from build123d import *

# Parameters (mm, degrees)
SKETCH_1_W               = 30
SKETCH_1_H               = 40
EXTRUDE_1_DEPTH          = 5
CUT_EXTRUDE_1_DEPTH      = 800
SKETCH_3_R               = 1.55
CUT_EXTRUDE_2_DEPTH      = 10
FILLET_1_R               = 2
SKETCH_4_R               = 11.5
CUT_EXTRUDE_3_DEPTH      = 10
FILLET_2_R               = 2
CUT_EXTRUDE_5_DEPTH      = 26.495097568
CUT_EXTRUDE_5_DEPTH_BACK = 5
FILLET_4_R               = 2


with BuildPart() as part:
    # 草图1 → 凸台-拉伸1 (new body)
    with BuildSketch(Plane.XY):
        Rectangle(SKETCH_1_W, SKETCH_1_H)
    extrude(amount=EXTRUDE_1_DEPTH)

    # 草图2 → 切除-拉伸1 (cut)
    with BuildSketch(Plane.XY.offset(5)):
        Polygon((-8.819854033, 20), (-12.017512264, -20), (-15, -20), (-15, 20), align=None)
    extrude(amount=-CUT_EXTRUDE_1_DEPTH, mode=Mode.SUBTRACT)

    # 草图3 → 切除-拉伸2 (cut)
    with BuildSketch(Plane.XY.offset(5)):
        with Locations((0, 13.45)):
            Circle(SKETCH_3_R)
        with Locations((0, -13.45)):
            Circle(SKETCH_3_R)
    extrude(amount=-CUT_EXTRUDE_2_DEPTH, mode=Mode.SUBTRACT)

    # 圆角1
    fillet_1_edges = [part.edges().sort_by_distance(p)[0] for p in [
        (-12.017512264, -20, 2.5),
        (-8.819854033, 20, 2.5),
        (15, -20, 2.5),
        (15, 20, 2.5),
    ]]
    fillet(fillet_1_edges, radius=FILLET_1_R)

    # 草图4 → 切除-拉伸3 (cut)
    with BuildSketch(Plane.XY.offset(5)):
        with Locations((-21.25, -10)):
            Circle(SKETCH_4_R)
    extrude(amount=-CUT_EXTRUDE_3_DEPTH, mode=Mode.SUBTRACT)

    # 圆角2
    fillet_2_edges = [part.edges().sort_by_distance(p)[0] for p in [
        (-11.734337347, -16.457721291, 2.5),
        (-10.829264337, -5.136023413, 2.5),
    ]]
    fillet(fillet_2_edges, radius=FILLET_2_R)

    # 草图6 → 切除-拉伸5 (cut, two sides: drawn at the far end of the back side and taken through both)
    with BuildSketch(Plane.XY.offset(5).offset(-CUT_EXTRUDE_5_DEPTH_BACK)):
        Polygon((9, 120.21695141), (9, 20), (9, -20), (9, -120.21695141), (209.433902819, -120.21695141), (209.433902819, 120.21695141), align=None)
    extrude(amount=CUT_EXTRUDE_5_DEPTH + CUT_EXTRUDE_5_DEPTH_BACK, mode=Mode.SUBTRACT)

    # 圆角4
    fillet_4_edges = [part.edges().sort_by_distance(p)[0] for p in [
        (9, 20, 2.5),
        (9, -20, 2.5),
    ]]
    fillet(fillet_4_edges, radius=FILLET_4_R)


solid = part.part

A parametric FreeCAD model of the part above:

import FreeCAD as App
import Part
import Sketcher
from FreeCAD import Vector
Q = App.Units.Quantity


def edges_at(feature, points):
    """Names of the edges that pass closest to the given points."""
    edges = feature.Shape.Edges
    near = lambda p: min(range(len(edges)), key=lambda i: edges[i].distToShape(Part.Vertex(*p))[0])
    return sorted({f"Edge{near(p) + 1}" for p in points})


def add_polygon(sketch, points):
    """Adds a closed chain of lines whose ends are joined by coincident constraints."""
    first, n = sketch.GeometryCount, len(points)
    for a, b in zip(points, points[1:] + points[:1]):
        sketch.addGeometry(Part.LineSegment(App.Vector(*a, 0), App.Vector(*b, 0)), False)
    for i in range(n):
        sketch.addConstraint(Sketcher.Constraint("Coincident", first + i, 2, first + (i + 1) % n, 1))

doc = App.newDocument("Part")
body = doc.addObject("PartDesign::Body", "Body")

# Sketch on XY plane
sketch1 = body.newObject("Sketcher::SketchObject", "Sketch")
sketch1.AttachmentSupport = (doc.getObject("XY_Plane"), [""])
sketch1.MapMode = "FlatFace"
add_polygon(sketch1, [(-15, 20), (-15, -20), (15, -20), (15, 20)])  # lines 0-3
sketch1.addConstraint([
    Sketcher.Constraint("Vertical", 0),
    Sketcher.Constraint("Horizontal", 1),
    Sketcher.Constraint("Vertical", 2),
    Sketcher.Constraint("Horizontal", 3),
    Sketcher.Constraint("Symmetric", 0, 2, 2, 2, -1, 1),
    Sketcher.Constraint("DistanceX", 1, 1, 1, 2, Q("30 mm")),
    Sketcher.Constraint("DistanceY", 0, 2, 0, 1, Q("40 mm")),
])
pad1 = body.newObject("PartDesign::Pad", "Pad")
pad1.Profile = sketch1
pad1.Length = 5

# Sketch on XY plane
sketch2 = body.newObject("Sketcher::SketchObject", "Sketch001")
sketch2.AttachmentSupport = (doc.getObject("XY_Plane"), [""])
sketch2.MapMode = "FlatFace"
sketch2.AttachmentOffset = App.Placement(Vector(0, 0, 5), App.Rotation())
add_polygon(sketch2, [(-12.017512, -20), (-8.819854, 20), (-15, 20), (-15, -20)])  # lines 0-3
sketch2.addConstraint([
    Sketcher.Constraint("Horizontal", 1),
    Sketcher.Constraint("Vertical", 2),
    Sketcher.Constraint("Horizontal", 3),
    Sketcher.Constraint("DistanceY", 2, 2, 2, 1, Q("40 mm")),
    Sketcher.Constraint("DistanceY", -1, 1, 0, 2, Q("20 mm")),
    Sketcher.Constraint("DistanceX", 1, 2, -1, 1, Q("15 mm")),
    Sketcher.Constraint("Distance", 0, Q("40.127609 mm")),
    Sketcher.Constraint("DistanceX", 1, 2, 1, 1, Q("6.180146 mm")),
])
pocket1 = body.newObject("PartDesign::Pocket", "Pocket")
pocket1.Profile = sketch2
pocket1.Length = 800

# Sketch on XY plane
sketch3 = body.newObject("Sketcher::SketchObject", "Sketch002")
sketch3.AttachmentSupport = (doc.getObject("XY_Plane"), [""])
sketch3.MapMode = "FlatFace"
sketch3.AttachmentOffset = App.Placement(Vector(0, 0, 5), App.Rotation())
sketch3.addGeometry([
    Part.Circle(Vector(0, 13.45, 0), Vector(0, 0, 1), 1.55),
    Part.Circle(Vector(0, -13.45, 0), Vector(0, 0, 1), 1.55),
], False)
sketch3.addConstraint([
    Sketcher.Constraint("Equal", 0, 1),
    Sketcher.Constraint("Symmetric", 0, 3, 1, 3, -1, 1),
    Sketcher.Constraint("PointOnObject", 0, 3, -2),
    Sketcher.Constraint("Diameter", 0, Q("3.1 mm")),
    Sketcher.Constraint("DistanceY", 1, 3, 0, 3, Q("26.9 mm")),
])
pocket2 = body.newObject("PartDesign::Pocket", "Pocket001")
pocket2.Profile = sketch3
pocket2.Length = 10
doc.recompute()

fillet = body.newObject("PartDesign::Fillet", "Fillet")
fillet.Base = (pocket2, edges_at(pocket2, [
    (-12.018, -20, 2.5),
    (-8.82, 20, 2.5),
    (15, -20, 2.5),
    (15, 20, 2.5),
]))
fillet.Radius = 2

# Sketch on XY plane
sketch4 = body.newObject("Sketcher::SketchObject", "Sketch003")
sketch4.AttachmentSupport = (doc.getObject("XY_Plane"), [""])
sketch4.MapMode = "FlatFace"
sketch4.AttachmentOffset = App.Placement(Vector(0, 0, 5), App.Rotation())
sketch4.addGeometry(Part.Circle(Vector(-21.25, -10, 0), Vector(0, 0, 1), 11.5), False)
sketch4.addConstraint([
    Sketcher.Constraint("Diameter", 0, Q("23 mm")),
    Sketcher.Constraint("DistanceY", 0, 3, -1, 1, Q("10 mm")),
    Sketcher.Constraint("DistanceX", 0, 3, -1, 1, Q("21.25 mm")),
])
pocket3 = body.newObject("PartDesign::Pocket", "Pocket002")
pocket3.Profile = sketch4
pocket3.Length = 10
doc.recompute()

fillet2 = body.newObject("PartDesign::Fillet", "Fillet001")
fillet2.Base = (pocket3, edges_at(pocket3, [(-11.734, -16.458, 2.5), (-10.829, -5.136, 2.5)]))
fillet2.Radius = 2

# Sketch on XY plane
sketch5 = body.newObject("Sketcher::SketchObject", "Sketch004")
sketch5.AttachmentSupport = (doc.getObject("XY_Plane"), [""])
sketch5.MapMode = "FlatFace"
sketch5.AttachmentOffset = App.Placement(Vector(0, 0, 5), App.Rotation())
add_polygon(sketch5, [(9, 120.216951), (9, -120.216951), (209.433903, -120.216951), (209.433903, 120.216951)])  # lines 0-3
sketch5.addConstraint([
    Sketcher.Constraint("Vertical", 0),
    Sketcher.Constraint("Horizontal", 1),
    Sketcher.Constraint("Vertical", 2),
    Sketcher.Constraint("Horizontal", 3),
    Sketcher.Constraint("DistanceX", -1, 1, 0, 2, Q("9 mm")),
    Sketcher.Constraint("DistanceX", 1, 1, 1, 2, Q("200.433903 mm")),
    Sketcher.Constraint("DistanceY", 0, 2, 0, 1, Q("240.433903 mm")),
    Sketcher.Constraint("DistanceY", 0, 2, -1, 1, Q("120.216951 mm")),
])
pocket4 = body.newObject("PartDesign::Pocket", "Pocket003")
pocket4.Profile = sketch5
pocket4.Type = "ThroughAll"
pocket4.Midplane = True
doc.recompute()

fillet3 = body.newObject("PartDesign::Fillet", "Fillet002")
fillet3.Base = (pocket4, edges_at(pocket4, [(9, 20, 2.5), (9, -20, 2.5)]))
fillet3.Radius = 2

doc.recompute()
